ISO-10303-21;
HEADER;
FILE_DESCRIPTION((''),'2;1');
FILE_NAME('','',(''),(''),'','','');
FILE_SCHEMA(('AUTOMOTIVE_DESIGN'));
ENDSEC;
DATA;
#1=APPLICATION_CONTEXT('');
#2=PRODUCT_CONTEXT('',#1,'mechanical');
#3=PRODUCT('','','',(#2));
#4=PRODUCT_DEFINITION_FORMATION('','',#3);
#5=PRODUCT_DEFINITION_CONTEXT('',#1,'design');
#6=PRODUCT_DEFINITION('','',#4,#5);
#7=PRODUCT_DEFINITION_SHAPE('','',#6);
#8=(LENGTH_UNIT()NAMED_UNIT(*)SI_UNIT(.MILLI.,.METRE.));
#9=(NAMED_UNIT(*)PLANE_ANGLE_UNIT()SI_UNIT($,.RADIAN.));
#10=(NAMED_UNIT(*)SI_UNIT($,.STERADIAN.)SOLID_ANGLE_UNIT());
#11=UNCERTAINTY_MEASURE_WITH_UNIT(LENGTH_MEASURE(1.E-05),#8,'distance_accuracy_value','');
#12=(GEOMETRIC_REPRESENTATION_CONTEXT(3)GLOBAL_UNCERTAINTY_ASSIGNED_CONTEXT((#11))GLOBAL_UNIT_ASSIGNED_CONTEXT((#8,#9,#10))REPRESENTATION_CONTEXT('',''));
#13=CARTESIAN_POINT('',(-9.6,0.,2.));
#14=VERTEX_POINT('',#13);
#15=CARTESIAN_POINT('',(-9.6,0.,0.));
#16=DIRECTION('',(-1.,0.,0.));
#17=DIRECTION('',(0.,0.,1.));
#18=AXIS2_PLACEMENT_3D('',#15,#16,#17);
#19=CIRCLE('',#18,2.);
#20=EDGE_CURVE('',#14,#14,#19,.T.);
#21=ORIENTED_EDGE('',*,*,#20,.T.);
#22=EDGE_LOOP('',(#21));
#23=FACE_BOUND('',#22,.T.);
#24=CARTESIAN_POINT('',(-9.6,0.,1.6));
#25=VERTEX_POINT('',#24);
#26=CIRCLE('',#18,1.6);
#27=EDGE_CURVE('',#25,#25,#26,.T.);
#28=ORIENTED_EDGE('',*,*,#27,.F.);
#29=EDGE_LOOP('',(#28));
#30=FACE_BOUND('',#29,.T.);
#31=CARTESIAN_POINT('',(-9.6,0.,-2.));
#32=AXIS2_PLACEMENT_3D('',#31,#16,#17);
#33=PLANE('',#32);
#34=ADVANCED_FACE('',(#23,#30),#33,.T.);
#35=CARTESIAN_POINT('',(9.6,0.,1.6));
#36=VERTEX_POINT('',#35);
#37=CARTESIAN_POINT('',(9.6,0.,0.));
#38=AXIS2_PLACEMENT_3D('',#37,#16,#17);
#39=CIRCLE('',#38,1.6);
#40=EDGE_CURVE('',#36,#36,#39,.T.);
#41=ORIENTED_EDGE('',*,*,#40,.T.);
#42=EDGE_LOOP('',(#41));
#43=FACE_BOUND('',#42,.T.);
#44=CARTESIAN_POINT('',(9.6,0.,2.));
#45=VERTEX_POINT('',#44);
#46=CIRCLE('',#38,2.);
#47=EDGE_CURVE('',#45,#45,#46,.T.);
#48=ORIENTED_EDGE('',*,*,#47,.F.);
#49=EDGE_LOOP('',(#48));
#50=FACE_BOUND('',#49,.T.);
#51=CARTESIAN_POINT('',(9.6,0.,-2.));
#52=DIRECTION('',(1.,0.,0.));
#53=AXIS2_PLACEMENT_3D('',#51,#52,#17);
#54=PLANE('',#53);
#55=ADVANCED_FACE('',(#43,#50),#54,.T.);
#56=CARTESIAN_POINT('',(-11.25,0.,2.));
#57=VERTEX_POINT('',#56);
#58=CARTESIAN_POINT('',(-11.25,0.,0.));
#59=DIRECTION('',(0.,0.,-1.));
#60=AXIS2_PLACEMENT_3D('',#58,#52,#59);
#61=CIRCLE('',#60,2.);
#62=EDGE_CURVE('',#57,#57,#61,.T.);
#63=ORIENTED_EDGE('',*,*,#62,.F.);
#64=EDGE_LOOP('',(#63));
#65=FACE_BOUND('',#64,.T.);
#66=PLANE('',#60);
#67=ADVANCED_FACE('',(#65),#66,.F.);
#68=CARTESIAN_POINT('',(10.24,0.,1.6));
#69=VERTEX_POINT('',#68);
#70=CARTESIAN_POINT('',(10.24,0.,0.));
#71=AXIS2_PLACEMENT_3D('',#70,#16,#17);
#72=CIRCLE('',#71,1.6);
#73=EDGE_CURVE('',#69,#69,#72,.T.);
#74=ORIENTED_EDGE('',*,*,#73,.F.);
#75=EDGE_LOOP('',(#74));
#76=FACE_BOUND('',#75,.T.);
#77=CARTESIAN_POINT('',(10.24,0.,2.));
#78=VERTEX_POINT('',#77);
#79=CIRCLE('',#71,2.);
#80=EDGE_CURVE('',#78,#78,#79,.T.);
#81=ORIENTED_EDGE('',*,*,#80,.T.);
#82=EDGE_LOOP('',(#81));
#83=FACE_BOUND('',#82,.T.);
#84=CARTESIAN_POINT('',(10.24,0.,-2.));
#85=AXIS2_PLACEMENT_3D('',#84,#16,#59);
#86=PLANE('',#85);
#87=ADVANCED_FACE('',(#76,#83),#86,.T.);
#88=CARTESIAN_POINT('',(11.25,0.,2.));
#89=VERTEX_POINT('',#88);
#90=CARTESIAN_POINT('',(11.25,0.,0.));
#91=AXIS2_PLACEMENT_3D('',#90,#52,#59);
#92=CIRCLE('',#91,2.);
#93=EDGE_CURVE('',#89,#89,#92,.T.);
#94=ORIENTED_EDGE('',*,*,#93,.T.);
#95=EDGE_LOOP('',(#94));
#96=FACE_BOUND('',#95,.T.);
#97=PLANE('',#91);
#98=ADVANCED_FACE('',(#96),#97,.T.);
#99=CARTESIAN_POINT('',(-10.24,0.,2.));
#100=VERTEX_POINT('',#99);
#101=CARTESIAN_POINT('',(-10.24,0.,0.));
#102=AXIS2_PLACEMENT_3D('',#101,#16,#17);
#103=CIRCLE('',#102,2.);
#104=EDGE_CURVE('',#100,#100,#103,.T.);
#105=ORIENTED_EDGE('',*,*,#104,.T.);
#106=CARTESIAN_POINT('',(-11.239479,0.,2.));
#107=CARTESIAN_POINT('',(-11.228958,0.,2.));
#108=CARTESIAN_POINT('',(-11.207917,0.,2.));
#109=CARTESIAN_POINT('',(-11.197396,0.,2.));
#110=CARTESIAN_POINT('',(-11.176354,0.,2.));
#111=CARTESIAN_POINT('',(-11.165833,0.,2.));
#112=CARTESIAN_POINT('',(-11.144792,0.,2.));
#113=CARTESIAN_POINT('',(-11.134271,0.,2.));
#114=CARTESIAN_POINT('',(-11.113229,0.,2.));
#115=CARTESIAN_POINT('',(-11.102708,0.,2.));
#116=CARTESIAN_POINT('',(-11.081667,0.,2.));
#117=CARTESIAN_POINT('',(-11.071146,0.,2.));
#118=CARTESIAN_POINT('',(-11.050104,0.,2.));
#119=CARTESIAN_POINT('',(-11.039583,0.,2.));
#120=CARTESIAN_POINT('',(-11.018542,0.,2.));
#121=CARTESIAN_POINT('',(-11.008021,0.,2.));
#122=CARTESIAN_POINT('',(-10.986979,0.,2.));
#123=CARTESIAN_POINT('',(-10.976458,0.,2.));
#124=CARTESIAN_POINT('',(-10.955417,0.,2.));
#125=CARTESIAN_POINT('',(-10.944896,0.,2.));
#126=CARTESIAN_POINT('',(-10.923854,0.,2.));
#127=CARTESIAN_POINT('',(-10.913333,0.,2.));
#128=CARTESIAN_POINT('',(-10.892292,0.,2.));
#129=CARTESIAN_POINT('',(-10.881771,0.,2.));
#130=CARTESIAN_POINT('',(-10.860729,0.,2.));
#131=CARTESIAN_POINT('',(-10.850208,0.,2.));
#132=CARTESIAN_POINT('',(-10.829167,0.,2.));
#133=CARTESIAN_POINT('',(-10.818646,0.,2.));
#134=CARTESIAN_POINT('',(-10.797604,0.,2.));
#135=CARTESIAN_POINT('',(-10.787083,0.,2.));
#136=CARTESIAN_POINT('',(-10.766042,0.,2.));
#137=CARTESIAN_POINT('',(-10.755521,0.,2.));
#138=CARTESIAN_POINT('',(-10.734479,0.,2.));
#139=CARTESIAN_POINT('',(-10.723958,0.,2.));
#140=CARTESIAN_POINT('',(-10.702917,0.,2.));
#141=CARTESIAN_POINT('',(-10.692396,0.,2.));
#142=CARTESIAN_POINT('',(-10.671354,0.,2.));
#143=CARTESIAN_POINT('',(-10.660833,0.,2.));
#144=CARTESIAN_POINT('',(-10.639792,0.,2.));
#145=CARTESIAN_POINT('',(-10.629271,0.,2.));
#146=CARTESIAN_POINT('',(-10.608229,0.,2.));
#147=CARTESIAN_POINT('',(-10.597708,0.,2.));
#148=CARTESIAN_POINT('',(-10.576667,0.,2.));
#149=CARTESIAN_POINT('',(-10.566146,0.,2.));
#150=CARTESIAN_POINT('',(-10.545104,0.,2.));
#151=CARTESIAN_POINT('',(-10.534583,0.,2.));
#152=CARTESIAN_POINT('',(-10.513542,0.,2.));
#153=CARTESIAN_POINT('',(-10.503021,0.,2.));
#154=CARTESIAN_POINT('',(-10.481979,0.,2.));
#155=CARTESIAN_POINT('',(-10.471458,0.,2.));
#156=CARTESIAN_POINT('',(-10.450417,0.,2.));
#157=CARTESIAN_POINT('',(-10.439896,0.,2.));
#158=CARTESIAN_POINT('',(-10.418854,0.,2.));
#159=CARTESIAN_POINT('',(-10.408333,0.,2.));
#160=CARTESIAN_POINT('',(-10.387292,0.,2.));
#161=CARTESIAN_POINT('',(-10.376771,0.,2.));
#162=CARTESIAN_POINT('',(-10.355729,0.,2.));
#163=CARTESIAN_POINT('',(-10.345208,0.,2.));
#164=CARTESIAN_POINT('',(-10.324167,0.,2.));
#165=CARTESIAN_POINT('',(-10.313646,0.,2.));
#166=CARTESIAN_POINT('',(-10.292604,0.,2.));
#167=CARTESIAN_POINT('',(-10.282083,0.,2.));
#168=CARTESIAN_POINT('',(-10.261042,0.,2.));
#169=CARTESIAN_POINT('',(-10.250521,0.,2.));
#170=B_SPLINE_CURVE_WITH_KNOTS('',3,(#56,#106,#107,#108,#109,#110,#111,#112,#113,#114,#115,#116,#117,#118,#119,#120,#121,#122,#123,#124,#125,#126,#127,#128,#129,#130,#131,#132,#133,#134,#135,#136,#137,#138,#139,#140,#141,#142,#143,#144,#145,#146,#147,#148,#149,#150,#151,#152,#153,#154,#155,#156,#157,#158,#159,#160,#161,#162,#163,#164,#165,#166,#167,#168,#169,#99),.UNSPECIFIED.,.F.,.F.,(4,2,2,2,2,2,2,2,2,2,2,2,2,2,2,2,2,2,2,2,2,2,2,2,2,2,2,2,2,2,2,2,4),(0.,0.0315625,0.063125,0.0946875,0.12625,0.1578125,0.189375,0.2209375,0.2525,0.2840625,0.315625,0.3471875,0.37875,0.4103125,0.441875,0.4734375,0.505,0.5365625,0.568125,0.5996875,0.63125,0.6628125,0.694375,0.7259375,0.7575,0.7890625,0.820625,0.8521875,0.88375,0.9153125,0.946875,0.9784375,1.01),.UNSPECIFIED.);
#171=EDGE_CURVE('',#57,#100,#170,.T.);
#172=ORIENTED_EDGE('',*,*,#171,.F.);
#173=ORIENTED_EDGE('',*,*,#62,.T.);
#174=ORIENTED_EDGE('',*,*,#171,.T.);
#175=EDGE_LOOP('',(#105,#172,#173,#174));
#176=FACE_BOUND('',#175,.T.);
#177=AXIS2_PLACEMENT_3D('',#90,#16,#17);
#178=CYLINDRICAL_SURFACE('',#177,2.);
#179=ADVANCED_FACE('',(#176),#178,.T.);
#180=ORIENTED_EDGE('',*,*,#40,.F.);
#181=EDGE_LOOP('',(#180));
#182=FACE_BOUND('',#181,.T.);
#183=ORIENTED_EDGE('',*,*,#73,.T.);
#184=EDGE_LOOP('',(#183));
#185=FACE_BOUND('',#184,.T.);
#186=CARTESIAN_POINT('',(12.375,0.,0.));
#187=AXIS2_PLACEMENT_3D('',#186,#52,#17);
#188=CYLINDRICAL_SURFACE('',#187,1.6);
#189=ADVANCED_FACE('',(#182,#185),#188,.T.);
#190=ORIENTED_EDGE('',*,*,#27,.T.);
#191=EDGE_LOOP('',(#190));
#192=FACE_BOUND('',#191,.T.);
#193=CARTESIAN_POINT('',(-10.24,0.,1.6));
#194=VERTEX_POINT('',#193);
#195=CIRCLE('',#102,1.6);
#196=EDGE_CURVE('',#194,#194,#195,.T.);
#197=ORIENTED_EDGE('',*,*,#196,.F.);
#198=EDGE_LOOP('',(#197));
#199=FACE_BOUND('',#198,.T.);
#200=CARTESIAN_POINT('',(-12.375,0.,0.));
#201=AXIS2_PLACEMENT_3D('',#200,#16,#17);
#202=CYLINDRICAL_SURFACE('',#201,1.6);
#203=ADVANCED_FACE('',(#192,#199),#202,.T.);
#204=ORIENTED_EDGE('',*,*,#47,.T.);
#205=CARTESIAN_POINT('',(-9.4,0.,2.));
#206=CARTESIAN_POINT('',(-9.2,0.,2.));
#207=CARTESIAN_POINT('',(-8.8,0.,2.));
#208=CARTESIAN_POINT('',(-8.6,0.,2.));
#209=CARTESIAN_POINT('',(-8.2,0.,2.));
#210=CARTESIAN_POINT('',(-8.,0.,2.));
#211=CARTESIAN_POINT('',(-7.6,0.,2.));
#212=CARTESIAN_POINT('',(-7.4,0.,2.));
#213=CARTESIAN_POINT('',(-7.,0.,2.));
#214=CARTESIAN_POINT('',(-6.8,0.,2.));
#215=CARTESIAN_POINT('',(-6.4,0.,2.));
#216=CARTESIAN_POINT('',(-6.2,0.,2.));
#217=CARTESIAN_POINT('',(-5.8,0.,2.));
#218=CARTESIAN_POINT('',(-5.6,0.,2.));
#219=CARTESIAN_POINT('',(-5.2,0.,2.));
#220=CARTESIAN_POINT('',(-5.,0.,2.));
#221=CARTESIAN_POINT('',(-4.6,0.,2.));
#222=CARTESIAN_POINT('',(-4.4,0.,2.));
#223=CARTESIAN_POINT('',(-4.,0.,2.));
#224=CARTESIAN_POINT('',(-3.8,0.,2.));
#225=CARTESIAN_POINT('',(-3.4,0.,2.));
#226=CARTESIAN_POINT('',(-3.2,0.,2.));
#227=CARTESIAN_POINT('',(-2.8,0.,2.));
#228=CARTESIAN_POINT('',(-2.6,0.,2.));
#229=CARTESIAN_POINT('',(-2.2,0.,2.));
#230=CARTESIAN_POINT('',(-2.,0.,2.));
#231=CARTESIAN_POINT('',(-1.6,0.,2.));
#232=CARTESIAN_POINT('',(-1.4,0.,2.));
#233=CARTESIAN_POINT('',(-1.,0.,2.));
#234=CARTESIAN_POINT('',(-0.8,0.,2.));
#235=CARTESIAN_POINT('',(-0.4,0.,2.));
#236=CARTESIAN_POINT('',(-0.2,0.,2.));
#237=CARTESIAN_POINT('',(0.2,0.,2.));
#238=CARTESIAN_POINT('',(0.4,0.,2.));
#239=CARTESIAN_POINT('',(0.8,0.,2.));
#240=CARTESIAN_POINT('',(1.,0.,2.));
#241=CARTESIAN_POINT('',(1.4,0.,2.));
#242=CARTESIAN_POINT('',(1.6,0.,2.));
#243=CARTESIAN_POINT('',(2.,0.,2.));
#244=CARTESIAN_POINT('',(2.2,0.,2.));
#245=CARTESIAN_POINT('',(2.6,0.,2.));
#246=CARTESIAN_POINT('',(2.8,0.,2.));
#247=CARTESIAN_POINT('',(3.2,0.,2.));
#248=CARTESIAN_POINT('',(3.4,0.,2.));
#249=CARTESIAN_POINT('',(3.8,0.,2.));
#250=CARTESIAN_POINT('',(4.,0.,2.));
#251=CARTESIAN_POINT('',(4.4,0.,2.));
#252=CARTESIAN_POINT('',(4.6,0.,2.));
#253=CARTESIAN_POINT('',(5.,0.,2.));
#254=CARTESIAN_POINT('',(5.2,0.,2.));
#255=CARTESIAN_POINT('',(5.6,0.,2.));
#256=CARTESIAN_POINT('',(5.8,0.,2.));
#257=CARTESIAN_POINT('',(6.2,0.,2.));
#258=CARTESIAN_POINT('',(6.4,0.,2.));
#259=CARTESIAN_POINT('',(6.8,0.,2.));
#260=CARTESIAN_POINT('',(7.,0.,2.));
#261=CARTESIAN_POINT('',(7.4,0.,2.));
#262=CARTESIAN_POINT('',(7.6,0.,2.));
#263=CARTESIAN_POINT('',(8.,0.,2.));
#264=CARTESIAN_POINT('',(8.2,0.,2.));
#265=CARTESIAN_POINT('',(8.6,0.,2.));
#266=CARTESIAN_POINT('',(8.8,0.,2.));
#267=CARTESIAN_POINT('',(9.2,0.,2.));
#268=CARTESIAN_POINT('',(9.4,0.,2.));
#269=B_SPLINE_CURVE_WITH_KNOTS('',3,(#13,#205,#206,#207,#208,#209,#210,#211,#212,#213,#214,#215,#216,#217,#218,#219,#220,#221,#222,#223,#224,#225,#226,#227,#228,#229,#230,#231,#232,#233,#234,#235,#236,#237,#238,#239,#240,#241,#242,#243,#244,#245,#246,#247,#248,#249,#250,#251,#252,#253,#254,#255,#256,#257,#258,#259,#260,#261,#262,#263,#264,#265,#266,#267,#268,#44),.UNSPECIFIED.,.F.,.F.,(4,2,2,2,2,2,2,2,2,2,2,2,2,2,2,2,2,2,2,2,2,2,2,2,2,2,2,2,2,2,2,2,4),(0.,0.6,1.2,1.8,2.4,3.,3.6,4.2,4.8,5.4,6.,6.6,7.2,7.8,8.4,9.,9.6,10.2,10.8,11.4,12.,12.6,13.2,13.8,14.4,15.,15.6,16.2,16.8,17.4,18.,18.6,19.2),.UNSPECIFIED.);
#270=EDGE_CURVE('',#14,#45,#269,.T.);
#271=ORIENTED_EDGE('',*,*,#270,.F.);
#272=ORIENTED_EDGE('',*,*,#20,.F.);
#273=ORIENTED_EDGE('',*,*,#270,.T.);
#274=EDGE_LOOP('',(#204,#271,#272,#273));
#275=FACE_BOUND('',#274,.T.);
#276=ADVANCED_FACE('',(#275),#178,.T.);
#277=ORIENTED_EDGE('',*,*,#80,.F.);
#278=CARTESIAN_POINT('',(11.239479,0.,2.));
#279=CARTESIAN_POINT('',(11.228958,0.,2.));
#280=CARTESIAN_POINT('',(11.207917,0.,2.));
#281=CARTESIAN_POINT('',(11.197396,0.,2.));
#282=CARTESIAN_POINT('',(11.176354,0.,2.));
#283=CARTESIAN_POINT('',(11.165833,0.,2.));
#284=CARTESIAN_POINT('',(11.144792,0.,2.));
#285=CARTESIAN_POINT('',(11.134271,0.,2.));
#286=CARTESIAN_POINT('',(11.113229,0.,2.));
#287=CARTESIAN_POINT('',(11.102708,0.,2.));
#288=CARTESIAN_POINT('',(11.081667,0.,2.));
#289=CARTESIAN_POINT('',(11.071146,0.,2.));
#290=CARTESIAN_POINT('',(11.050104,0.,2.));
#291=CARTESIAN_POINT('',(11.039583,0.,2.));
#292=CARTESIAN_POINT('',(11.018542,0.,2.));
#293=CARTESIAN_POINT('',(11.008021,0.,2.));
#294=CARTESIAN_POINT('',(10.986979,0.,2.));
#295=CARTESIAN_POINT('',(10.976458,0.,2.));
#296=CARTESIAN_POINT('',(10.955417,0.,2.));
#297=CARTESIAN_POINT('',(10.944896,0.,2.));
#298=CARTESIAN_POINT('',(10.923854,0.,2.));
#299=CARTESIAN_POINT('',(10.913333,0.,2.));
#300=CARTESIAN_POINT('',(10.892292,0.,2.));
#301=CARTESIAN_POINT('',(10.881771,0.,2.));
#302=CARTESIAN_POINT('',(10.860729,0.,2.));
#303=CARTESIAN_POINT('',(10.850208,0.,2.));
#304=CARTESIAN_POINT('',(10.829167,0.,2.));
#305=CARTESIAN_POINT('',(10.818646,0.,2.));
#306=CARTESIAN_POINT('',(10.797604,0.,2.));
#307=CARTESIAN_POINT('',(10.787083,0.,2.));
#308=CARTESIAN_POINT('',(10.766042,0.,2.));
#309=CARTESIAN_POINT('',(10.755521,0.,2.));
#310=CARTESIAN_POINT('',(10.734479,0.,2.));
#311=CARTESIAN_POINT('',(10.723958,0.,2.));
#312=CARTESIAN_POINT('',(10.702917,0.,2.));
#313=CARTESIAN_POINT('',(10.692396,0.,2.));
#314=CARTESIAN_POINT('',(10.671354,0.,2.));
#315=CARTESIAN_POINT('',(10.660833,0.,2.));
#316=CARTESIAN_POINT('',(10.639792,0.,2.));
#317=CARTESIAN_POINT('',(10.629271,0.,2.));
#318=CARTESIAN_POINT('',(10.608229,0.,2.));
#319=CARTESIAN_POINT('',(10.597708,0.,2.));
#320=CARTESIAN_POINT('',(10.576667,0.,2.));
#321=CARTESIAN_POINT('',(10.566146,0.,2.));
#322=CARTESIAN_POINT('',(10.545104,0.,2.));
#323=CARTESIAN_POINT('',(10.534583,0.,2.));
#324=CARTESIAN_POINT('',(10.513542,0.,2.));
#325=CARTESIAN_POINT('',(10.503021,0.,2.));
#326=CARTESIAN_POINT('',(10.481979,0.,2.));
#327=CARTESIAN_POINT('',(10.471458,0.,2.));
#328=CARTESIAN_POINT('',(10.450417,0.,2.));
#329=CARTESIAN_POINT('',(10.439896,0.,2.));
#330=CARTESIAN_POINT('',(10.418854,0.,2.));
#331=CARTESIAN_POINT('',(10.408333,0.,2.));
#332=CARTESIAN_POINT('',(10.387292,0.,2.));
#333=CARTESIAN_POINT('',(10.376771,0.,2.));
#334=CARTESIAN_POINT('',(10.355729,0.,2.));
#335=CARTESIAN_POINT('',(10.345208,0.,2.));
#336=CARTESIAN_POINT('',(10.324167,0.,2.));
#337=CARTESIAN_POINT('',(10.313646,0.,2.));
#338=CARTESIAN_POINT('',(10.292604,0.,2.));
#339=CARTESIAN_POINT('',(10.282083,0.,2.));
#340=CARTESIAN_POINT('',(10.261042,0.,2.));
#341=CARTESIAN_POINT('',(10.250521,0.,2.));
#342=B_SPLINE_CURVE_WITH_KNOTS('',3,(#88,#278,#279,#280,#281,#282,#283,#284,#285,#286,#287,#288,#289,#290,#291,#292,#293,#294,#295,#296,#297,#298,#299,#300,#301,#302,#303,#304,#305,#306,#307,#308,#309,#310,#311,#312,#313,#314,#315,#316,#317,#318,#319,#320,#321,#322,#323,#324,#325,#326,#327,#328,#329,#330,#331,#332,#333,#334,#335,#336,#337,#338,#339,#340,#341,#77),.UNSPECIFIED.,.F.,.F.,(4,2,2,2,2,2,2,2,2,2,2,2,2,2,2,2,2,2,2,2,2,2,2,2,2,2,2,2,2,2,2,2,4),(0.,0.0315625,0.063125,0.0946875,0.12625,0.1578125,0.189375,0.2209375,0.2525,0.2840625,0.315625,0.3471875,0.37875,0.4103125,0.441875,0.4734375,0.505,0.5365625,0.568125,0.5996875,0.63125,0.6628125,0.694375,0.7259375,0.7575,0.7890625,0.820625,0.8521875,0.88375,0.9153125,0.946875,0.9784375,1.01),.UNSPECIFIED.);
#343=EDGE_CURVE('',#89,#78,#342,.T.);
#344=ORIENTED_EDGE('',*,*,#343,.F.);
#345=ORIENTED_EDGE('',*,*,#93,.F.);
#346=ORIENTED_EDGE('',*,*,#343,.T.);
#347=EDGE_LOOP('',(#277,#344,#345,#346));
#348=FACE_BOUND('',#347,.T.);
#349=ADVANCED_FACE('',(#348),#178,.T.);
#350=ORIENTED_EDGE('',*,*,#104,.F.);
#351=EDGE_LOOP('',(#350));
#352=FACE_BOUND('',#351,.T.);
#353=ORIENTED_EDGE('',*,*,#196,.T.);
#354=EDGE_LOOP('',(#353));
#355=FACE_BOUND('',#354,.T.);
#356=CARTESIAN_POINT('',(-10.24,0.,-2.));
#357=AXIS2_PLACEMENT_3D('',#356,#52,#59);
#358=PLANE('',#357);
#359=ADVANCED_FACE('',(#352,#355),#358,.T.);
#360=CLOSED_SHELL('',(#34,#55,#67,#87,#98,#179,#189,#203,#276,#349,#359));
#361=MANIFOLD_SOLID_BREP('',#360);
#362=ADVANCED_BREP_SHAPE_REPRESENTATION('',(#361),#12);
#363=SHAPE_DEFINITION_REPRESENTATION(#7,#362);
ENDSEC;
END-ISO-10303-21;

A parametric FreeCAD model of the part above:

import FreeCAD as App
import Part
import Sketcher
from FreeCAD import Vector
Q = App.Units.Quantity


def add_polygon(sketch, points):
    """Adds a closed chain of lines whose ends are joined by coincident constraints."""
    first, n = sketch.GeometryCount, len(points)
    for a, b in zip(points, points[1:] + points[:1]):
        sketch.addGeometry(Part.LineSegment(App.Vector(*a, 0), App.Vector(*b, 0)), False)
    for i in range(n):
        sketch.addConstraint(Sketcher.Constraint("Coincident", first + i, 2, first + (i + 1) % n, 1))

doc = App.newDocument("Part")
body = doc.addObject("PartDesign::Body", "Body")

# Sketch on YZ plane
sketch1 = doc.addObject("Sketcher::SketchObject", "Sketch")
body.addObject(sketch1)
sketch1.AttachmentSupport = (doc.YZ_Plane, [""])
sketch1.MapMode = "FlatFace"
sketch1.addGeometry(Part.Circle(Vector(0, 0, 0), Vector(0, 0, 1), 2), False)
sketch1.addConstraint(Sketcher.Constraint("Coincident", 0, 3, -1, 1))
sketch1.addConstraint(Sketcher.Constraint("Diameter", 0, Q("4 mm")))
pad1 = doc.addObject("PartDesign::Pad", "Pad")
body.addObject(pad1)
pad1.Profile = sketch1
pad1.Length = 22.5
pad1.Midplane = True

# Sketch on XZ plane
sketch2 = doc.addObject("Sketcher::SketchObject", "Sketch001")
body.addObject(sketch2)
sketch2.AttachmentSupport = (doc.XZ_Plane, [""])
sketch2.MapMode = "FlatFace"
add_polygon(sketch2, [(-10.24, -2), (-10.24, -1.6), (-9.6, -1.6), (-9.6, -2)])  # lines 0-3
sketch2.addConstraint(Sketcher.Constraint("Vertical", 0))
sketch2.addConstraint(Sketcher.Constraint("Horizontal", 1))
sketch2.addConstraint(Sketcher.Constraint("Vertical", 2))
sketch2.addConstraint(Sketcher.Constraint("Horizontal", 3))
sketch2.addConstraint(Sketcher.Constraint("DistanceY", 0, 1, 0, 2, Q("0.4 mm")))
sketch2.addConstraint(Sketcher.Constraint("DistanceY", 2, 2, -1, 1, Q("2 mm")))
sketch2.addConstraint(Sketcher.Constraint("DistanceX", 1, 1, 1, 2, Q("0.64 mm")))
sketch2.addConstraint(Sketcher.Constraint("DistanceX", 1, 2, -1, 1, Q("9.6 mm")))
groove = doc.addObject("PartDesign::Groove", "Groove")
body.addObject(groove)
groove.Profile = sketch2
groove.ReferenceAxis = (sketch2, ["H_Axis"])
groove.Angle = 360
doc.recompute()

mirrored = doc.addObject("PartDesign::Mirrored", "Mirrored")
body.addObject(mirrored)
mirrored.Originals = [groove]
mirrored.MirrorPlane = (doc.YZ_Plane, [""])
body.Tip = mirrored

doc.recompute()
